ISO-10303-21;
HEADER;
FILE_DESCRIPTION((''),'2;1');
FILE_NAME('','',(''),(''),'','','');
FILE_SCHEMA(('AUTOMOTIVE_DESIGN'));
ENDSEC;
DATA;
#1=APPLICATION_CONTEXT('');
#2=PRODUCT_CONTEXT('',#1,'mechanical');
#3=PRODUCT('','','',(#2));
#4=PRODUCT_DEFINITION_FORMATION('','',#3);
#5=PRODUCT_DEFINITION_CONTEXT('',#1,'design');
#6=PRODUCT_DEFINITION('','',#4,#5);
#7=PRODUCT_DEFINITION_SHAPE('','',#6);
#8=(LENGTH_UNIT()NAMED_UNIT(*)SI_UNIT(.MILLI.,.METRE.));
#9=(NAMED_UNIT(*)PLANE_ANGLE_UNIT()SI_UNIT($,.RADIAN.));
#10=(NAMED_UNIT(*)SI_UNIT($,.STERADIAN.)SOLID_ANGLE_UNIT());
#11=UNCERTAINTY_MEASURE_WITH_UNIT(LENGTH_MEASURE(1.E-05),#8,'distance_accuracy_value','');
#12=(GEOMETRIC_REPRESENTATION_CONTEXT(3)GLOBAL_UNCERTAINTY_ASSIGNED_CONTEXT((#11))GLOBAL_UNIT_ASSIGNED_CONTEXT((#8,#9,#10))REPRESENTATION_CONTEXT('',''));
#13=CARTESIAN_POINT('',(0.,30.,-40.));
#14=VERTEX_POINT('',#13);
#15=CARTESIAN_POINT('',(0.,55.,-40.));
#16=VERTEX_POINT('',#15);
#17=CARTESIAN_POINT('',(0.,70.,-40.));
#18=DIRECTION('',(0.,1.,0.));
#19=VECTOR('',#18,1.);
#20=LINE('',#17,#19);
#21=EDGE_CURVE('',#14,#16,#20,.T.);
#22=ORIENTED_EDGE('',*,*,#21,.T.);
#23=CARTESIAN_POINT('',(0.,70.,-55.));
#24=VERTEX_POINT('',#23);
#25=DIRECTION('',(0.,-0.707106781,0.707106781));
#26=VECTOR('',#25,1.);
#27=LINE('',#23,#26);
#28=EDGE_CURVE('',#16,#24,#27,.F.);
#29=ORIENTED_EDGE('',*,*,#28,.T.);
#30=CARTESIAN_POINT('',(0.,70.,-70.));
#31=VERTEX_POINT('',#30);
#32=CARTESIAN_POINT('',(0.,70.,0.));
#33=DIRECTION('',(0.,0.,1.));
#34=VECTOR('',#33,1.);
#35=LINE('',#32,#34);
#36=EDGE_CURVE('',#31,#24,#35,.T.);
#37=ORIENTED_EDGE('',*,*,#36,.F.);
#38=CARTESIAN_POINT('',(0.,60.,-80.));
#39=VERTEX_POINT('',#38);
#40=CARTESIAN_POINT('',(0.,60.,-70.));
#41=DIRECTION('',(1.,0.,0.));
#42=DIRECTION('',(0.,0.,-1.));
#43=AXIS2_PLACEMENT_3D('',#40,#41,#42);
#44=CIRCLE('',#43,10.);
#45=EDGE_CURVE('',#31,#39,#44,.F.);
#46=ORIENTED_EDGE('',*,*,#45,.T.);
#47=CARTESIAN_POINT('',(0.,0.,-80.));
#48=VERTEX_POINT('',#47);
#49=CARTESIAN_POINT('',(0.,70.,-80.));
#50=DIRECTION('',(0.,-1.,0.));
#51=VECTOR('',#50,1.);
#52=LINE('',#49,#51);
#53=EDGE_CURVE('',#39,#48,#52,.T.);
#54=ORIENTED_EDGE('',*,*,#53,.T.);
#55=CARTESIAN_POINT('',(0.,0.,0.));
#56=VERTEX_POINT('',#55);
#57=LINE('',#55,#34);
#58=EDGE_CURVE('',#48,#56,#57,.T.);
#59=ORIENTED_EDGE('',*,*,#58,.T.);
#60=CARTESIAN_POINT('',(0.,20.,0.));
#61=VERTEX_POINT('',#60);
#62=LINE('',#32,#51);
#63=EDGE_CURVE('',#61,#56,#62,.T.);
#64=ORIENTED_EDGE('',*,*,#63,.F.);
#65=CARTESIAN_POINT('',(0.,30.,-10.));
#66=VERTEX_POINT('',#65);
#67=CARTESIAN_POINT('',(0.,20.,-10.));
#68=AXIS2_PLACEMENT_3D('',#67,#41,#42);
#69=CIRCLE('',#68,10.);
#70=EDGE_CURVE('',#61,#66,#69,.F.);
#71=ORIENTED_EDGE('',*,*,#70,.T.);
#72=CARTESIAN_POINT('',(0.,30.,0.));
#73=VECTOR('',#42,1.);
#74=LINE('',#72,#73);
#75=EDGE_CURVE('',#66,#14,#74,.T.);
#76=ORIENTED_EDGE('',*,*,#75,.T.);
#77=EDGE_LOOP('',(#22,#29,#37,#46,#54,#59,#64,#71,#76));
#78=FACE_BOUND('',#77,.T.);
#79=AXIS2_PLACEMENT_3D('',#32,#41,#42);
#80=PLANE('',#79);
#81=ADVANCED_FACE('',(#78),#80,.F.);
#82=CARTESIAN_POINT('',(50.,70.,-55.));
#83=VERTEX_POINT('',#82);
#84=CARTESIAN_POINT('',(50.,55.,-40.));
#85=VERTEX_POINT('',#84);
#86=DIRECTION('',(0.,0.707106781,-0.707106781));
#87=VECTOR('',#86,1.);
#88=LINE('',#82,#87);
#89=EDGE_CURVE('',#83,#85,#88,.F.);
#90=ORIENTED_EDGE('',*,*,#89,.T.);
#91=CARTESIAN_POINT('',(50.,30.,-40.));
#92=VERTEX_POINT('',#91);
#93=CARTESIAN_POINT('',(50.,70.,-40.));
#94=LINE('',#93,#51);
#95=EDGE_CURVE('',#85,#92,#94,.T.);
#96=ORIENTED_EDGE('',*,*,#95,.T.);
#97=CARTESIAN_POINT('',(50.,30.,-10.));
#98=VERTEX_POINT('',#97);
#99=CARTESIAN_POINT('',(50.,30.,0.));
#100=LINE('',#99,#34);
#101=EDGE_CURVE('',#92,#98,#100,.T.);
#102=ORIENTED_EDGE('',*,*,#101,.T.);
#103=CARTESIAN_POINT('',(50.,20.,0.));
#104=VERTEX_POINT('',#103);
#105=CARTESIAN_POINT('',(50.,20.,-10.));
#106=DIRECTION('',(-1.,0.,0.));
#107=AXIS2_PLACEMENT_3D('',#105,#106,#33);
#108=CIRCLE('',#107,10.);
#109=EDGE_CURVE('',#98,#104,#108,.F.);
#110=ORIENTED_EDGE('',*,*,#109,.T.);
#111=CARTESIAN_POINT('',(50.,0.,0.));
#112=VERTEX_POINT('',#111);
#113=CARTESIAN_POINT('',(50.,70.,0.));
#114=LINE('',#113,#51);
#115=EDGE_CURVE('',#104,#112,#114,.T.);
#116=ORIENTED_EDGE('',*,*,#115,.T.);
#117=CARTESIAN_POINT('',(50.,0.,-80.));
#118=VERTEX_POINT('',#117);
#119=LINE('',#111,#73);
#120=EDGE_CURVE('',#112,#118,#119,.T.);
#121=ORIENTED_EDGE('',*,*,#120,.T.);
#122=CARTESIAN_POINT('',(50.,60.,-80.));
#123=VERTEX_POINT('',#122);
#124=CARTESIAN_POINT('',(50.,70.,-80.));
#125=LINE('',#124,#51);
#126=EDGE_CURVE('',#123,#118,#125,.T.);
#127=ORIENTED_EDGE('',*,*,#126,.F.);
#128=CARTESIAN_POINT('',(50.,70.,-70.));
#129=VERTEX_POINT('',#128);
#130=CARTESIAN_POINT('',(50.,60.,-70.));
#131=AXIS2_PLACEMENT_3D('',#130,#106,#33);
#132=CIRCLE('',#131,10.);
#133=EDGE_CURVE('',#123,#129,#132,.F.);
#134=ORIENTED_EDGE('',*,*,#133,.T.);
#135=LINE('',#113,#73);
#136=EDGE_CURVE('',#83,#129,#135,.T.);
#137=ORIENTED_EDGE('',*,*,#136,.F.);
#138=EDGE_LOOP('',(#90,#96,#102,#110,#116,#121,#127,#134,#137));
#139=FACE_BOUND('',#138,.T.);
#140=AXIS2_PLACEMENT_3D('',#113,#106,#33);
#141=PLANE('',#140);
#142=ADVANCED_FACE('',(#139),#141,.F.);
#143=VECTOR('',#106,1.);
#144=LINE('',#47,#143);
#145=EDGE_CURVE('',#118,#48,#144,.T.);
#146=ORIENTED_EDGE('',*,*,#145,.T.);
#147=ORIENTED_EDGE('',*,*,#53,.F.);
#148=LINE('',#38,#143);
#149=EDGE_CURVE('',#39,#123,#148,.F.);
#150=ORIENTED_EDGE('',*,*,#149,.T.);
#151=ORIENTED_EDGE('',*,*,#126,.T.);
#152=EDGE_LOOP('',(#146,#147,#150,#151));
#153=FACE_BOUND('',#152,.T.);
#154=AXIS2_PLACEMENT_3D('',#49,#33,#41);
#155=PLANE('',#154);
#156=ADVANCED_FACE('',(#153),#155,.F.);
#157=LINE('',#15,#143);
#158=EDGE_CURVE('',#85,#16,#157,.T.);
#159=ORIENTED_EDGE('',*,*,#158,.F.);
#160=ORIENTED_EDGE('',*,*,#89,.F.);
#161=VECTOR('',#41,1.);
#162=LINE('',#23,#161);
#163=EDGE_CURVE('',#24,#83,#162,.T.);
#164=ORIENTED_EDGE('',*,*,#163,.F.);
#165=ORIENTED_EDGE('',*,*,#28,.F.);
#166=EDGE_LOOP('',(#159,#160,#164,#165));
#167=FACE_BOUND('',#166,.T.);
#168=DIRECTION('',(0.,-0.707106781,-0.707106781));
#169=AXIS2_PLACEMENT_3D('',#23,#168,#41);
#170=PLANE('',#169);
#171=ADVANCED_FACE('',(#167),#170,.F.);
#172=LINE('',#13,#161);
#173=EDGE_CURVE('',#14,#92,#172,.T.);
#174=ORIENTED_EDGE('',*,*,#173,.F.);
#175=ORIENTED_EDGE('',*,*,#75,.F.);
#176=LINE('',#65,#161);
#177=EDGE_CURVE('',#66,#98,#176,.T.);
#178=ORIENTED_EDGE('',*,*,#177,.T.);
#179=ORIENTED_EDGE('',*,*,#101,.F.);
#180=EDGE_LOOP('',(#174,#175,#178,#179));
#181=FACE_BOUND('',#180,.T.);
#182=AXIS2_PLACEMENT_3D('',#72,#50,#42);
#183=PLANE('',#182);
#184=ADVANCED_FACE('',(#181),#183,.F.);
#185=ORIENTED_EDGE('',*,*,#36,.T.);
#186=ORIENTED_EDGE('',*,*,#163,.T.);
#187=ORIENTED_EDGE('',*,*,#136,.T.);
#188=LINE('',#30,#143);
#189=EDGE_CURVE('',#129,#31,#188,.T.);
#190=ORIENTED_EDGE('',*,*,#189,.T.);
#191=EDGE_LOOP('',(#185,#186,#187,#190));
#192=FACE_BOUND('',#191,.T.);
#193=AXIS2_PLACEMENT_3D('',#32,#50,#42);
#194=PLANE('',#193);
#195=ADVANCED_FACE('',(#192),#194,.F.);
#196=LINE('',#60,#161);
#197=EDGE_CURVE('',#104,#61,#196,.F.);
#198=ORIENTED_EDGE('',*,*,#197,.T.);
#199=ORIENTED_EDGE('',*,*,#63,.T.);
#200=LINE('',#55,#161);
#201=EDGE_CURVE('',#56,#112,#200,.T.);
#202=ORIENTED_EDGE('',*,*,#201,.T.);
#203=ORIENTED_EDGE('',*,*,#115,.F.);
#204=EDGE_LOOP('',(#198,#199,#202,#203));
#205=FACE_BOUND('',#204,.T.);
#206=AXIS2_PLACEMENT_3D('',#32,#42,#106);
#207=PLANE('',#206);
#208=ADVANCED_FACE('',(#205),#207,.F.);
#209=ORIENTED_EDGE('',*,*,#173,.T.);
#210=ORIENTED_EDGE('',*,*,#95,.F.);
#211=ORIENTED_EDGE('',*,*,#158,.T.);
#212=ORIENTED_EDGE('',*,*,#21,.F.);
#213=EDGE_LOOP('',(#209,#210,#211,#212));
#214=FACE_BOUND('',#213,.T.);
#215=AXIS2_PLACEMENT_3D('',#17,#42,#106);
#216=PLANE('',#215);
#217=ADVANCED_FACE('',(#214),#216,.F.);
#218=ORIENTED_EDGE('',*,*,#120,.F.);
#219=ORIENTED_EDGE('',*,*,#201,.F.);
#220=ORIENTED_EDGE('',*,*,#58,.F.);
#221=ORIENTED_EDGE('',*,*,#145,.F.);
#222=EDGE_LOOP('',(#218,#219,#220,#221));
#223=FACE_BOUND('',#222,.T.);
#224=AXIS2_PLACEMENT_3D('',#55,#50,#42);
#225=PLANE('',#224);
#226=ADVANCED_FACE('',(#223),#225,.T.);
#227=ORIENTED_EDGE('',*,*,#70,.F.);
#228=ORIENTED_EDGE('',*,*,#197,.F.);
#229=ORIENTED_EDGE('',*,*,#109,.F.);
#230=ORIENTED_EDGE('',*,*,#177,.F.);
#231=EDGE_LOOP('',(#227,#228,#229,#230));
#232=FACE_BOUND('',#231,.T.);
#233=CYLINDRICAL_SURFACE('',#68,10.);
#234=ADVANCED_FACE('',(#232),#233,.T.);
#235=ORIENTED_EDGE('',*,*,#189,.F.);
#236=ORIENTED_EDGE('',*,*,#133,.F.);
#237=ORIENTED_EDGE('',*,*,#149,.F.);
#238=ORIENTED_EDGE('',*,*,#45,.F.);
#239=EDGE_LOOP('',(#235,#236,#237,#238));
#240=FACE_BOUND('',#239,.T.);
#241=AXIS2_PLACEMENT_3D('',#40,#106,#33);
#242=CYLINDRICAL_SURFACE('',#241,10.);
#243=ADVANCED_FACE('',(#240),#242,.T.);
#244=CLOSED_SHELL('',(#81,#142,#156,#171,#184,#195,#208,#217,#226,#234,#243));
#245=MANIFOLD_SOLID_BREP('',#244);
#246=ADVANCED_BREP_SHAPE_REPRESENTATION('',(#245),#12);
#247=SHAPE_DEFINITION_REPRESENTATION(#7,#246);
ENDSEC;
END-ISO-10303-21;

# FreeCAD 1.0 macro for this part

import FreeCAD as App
import Part
import Sketcher

V = App.Vector
Q = App.Units.Quantity


def edges_at(feature, points):
    """Names of the edges that pass closest to the given points."""
    edges = feature.Shape.Edges
    near = lambda p: min(range(len(edges)), key=lambda i: edges[i].distToShape(Part.Vertex(*p))[0])
    return sorted({f"Edge{near(p) + 1}" for p in points})

doc = App.newDocument("Part")
body = doc.addObject("PartDesign::Body", "Body")

# Sketch on XZ plane
sketch1 = body.newObject("Sketcher::SketchObject", "Sketch")
sketch1.AttachmentSupport = (doc.getObject("XZ_Plane"), [""])
sketch1.MapMode = "FlatFace"
sketch1.addGeometry(Part.LineSegment(V(0, -80, 0), V(0, 0, 0)), False)
sketch1.addGeometry(Part.LineSegment(V(0, 0, 0), V(50, 0, 0)), False)
sketch1.addGeometry(Part.LineSegment(V(50, 0, 0), V(50, -80, 0)), False)
sketch1.addGeometry(Part.LineSegment(V(50, -80, 0), V(0, -80, 0)), False)
sketch1.addConstraint(Sketcher.Constraint("Coincident", 0, 2, 1, 1))
sketch1.addConstraint(Sketcher.Constraint("Coincident", 1, 2, 2, 1))
sketch1.addConstraint(Sketcher.Constraint("Coincident", 2, 2, 3, 1))
sketch1.addConstraint(Sketcher.Constraint("Coincident", 3, 2, 0, 1))
sketch1.addConstraint(Sketcher.Constraint("Vertical", 0))
sketch1.addConstraint(Sketcher.Constraint("Horizontal", 1))
sketch1.addConstraint(Sketcher.Constraint("Vertical", 2))
sketch1.addConstraint(Sketcher.Constraint("Horizontal", 3))
sketch1.addConstraint(Sketcher.Constraint("Coincident", 0, 2, -1, 1))
sketch1.addConstraint(Sketcher.Constraint("DistanceX", 1, 1, 1, 2, Q("50 mm")))
sketch1.addConstraint(Sketcher.Constraint("DistanceY", 0, 1, 0, 2, Q("80 mm")))
pad1 = body.newObject("PartDesign::Pad", "Pad")
pad1.Profile = sketch1
pad1.Length = 70
pad1.Reversed = True

# Sketch on YZ plane
sketch2 = body.newObject("Sketcher::SketchObject", "Sketch001")
sketch2.AttachmentSupport = (doc.getObject("YZ_Plane"), [""])
sketch2.MapMode = "FlatFace"
sketch2.AttachmentOffset = App.Placement(V(0, 0, 50), App.Rotation())
sketch2.addGeometry(Part.LineSegment(V(70, 0, 0), V(30, 0, 0)), False)
sketch2.addGeometry(Part.LineSegment(V(30, 0, 0), V(30, -40, 0)), False)
sketch2.addGeometry(Part.LineSegment(V(30, -40, 0), V(70, -40, 0)), False)
sketch2.addGeometry(Part.LineSegment(V(70, -40, 0), V(70, 0, 0)), False)
sketch2.addConstraint(Sketcher.Constraint("Coincident", 0, 2, 1, 1))
sketch2.addConstraint(Sketcher.Constraint("Coincident", 1, 2, 2, 1))
sketch2.addConstraint(Sketcher.Constraint("Coincident", 2, 2, 3, 1))
sketch2.addConstraint(Sketcher.Constraint("Coincident", 3, 2, 0, 1))
sketch2.addConstraint(Sketcher.Constraint("Horizontal", 0))
sketch2.addConstraint(Sketcher.Constraint("Vertical", 1))
sketch2.addConstraint(Sketcher.Constraint("Horizontal", 2))
sketch2.addConstraint(Sketcher.Constraint("Vertical", 3))
sketch2.addConstraint(Sketcher.Constraint("PointOnObject", 0, 2, -1))
sketch2.addConstraint(Sketcher.Constraint("Equal", 2, 1))
sketch2.addConstraint(Sketcher.Constraint("DistanceX", 0, 2, 0, 1, Q("40 mm")))
sketch2.addConstraint(Sketcher.Constraint("DistanceX", -1, 1, 0, 2, Q("30 mm")))
pocket1 = body.newObject("PartDesign::Pocket", "Pocket")
pocket1.Profile = sketch2
pocket1.Type = "ThroughAll"
pocket1.Midplane = True
doc.recompute()

chamfer = body.newObject("PartDesign::Chamfer", "Chamfer")
chamfer.Base = (pocket1, edges_at(pocket1, [(25, 70, -40)]))
chamfer.Size = 15
doc.recompute()

fillet = body.newObject("PartDesign::Fillet", "Fillet")
fillet.Base = (chamfer, edges_at(chamfer, [(25, 70, -80), (25, 30, 0)]))
fillet.Radius = 10

doc.recompute()
